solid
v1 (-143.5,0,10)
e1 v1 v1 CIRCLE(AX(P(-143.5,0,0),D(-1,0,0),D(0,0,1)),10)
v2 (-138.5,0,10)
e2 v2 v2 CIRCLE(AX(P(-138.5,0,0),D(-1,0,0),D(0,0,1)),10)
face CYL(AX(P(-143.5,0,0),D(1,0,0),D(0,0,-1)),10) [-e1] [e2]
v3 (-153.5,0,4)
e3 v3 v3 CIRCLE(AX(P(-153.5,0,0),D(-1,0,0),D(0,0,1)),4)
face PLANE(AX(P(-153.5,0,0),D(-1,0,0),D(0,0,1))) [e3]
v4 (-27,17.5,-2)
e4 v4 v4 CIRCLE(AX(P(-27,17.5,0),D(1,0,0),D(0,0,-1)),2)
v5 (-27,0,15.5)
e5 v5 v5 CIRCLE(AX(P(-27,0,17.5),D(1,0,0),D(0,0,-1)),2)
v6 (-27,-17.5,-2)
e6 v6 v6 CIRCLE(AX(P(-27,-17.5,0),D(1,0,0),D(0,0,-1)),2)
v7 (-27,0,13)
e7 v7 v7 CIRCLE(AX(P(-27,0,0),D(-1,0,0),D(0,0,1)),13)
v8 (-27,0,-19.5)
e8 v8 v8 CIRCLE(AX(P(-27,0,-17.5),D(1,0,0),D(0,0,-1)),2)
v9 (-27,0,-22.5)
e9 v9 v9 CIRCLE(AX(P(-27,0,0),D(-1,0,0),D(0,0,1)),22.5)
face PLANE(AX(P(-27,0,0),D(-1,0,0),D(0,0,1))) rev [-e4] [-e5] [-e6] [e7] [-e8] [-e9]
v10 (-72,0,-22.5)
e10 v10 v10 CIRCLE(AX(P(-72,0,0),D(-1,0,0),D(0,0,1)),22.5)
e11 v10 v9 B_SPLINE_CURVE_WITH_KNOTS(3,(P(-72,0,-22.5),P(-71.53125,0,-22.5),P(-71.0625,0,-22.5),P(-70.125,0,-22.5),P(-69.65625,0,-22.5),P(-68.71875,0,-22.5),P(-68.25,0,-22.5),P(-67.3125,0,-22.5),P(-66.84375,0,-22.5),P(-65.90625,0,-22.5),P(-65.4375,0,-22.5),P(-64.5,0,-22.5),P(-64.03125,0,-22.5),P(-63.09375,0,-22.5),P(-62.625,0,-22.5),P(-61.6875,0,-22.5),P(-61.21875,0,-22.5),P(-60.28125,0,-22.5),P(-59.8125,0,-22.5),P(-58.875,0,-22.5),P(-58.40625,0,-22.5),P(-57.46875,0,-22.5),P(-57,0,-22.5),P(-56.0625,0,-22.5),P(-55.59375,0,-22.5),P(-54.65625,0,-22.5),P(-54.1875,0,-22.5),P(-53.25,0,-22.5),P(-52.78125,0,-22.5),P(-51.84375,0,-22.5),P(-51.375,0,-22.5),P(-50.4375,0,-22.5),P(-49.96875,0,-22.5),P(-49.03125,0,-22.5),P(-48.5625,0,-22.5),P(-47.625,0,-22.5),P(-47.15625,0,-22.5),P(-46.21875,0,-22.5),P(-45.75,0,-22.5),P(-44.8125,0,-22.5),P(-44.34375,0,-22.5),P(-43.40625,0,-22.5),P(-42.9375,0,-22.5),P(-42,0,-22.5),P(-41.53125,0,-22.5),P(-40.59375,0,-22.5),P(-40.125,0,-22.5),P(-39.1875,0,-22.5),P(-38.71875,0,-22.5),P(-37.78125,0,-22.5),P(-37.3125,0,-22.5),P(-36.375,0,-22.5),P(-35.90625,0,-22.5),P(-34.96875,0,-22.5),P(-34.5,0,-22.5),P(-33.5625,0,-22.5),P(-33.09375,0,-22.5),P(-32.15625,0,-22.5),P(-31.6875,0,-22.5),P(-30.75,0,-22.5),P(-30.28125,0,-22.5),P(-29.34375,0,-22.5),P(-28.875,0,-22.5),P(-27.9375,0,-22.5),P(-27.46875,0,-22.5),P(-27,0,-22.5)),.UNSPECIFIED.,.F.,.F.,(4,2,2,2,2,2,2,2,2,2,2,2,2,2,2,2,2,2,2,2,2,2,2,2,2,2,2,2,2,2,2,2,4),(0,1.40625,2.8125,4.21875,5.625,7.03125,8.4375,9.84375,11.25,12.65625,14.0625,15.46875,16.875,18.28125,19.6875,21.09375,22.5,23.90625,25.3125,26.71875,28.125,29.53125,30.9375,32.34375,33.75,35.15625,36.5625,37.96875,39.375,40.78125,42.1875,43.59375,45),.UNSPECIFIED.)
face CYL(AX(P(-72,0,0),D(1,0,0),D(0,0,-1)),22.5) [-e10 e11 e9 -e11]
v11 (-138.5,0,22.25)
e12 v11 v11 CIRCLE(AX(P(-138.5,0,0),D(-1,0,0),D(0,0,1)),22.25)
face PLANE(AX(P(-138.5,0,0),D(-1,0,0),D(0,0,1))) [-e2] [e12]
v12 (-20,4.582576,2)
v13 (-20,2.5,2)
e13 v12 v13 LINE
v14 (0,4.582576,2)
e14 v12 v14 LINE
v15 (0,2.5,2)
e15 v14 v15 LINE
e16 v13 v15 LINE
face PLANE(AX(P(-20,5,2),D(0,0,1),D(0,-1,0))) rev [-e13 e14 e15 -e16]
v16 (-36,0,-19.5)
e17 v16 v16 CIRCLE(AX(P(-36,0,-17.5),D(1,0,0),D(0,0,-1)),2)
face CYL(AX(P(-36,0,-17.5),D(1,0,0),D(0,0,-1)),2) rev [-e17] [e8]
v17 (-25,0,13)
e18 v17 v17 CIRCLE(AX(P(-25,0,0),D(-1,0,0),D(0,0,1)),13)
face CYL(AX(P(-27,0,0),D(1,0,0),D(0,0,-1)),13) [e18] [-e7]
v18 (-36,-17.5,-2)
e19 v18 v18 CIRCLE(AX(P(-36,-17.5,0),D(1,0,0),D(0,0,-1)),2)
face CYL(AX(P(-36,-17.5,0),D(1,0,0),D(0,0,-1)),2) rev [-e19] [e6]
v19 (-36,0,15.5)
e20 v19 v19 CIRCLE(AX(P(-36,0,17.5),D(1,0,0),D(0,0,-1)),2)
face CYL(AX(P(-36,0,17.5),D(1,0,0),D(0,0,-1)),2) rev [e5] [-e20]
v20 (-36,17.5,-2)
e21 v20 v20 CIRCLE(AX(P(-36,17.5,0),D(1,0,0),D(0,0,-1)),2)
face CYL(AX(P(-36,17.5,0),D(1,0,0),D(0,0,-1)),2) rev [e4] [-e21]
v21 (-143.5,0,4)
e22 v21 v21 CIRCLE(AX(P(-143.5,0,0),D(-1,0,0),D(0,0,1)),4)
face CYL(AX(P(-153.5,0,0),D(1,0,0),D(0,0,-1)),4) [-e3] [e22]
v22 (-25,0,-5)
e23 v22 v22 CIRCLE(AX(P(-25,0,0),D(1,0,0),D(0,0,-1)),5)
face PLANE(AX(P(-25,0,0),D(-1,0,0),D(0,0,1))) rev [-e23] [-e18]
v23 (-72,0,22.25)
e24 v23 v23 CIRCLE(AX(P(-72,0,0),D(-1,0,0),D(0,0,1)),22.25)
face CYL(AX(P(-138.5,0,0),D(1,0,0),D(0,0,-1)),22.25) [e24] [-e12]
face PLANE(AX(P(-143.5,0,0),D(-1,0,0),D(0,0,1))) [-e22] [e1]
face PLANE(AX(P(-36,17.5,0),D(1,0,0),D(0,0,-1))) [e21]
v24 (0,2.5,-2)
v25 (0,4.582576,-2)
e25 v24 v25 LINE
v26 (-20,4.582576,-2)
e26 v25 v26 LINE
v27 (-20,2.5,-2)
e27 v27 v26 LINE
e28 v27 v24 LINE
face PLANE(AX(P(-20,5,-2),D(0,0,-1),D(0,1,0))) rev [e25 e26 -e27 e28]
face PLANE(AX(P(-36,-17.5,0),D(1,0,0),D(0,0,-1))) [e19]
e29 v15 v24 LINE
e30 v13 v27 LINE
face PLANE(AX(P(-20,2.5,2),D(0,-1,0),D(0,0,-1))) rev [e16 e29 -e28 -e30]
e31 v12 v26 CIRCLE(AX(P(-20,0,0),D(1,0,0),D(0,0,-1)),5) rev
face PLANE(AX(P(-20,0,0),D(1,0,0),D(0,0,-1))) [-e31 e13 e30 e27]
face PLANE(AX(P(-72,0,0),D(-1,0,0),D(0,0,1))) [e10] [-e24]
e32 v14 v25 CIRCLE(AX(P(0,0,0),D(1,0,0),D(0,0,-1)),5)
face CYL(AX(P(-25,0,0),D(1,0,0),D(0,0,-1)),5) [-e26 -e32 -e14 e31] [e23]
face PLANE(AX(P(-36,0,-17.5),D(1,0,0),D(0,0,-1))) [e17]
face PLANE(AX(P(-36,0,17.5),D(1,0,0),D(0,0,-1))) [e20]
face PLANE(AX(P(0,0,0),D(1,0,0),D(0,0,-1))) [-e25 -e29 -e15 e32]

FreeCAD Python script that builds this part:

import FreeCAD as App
import Part
import Sketcher

V = App.Vector
Q = App.Units.Quantity


def add_polygon(sketch, points):
    """Adds a closed chain of lines whose ends are joined by coincident constraints."""
    first, n = sketch.GeometryCount, len(points)
    for a, b in zip(points, points[1:] + points[:1]):
        sketch.addGeometry(Part.LineSegment(App.Vector(*a, 0), App.Vector(*b, 0)), False)
    for i in range(n):
        sketch.addConstraint(Sketcher.Constraint("Coincident", first + i, 2, first + (i + 1) % n, 1))

doc = App.newDocument("Part")
body = doc.addObject("PartDesign::Body", "Body")

sketch1 = body.newObject("Sketcher::SketchObject", "Sketch")
sketch1.AttachmentSupport = (doc.getObject("YZ_Plane"), [""])
sketch1.MapMode = "FlatFace"
sketch1.addGeometry(Part.Circle(V(0, 0, 0), V(0, 0, 1), 5), False)
sketch1.addConstraint([
    Sketcher.Constraint("Coincident", 0, 3, -1, 1),
    Sketcher.Constraint("Diameter", 0, Q("10 mm")),
])
pad1 = body.newObject("PartDesign::Pad", "Pad")
pad1.Profile = sketch1
pad1.Length = 25
pad1.Reversed = True

sketch2 = body.newObject("Sketcher::SketchObject", "Sketch001")
sketch2.AttachmentSupport = (doc.getObject("YZ_Plane"), [""])
sketch2.MapMode = "FlatFace"
sketch2.AttachmentOffset = App.Placement(V(0, 0, -25), App.Rotation())
sketch2.addGeometry(Part.Circle(V(0, 0, 0), V(0, 0, 1), 13), False)
sketch2.addConstraint([
    Sketcher.Constraint("Coincident", 0, 3, -1, 1),
    Sketcher.Constraint("Diameter", 0, Q("26 mm")),
])
pad2 = body.newObject("PartDesign::Pad", "Pad001")
pad2.Profile = sketch2
pad2.Length = 2
pad2.Reversed = True

sketch3 = body.newObject("Sketcher::SketchObject", "Sketch002")
sketch3.AttachmentSupport = (doc.getObject("YZ_Plane"), [""])
sketch3.MapMode = "FlatFace"
sketch3.AttachmentOffset = App.Placement(V(0, 0, -27), App.Rotation())
sketch3.addGeometry(Part.Circle(V(0, 0, 0), V(0, 0, 1), 22), False)
sketch3.addConstraint([
    Sketcher.Constraint("Coincident", 0, 3, -1, 1),
    Sketcher.Constraint("Diameter", 0, Q("45 mm")),
])
pad3 = body.newObject("PartDesign::Pad", "Pad002")
pad3.Profile = sketch3
pad3.Length = 45
pad3.Reversed = True

sketch4 = body.newObject("Sketcher::SketchObject", "Sketch003")
sketch4.AttachmentSupport = (doc.getObject("YZ_Plane"), [""])
sketch4.MapMode = "FlatFace"
sketch4.AttachmentOffset = App.Placement(V(0, 0, -72), App.Rotation())
sketch4.addGeometry(Part.Circle(V(0, 0, 0), V(0, 0, 1), 22), False)
sketch4.addConstraint([
    Sketcher.Constraint("Coincident", 0, 3, -1, 1),
    Sketcher.Constraint("Diameter", 0, Q("44.5 mm")),
])
pad4 = body.newObject("PartDesign::Pad", "Pad003")
pad4.Profile = sketch4
pad4.Length = 66.5
pad4.Reversed = True

sketch5 = body.newObject("Sketcher::SketchObject", "Sketch004")
sketch5.AttachmentSupport = (doc.getObject("YZ_Plane"), [""])
sketch5.MapMode = "FlatFace"
sketch5.AttachmentOffset = App.Placement(V(0, 0, -138.5), App.Rotation())
sketch5.addGeometry(Part.Circle(V(0, 0, 0), V(0, 0, 1), 10), False)
sketch5.addConstraint([
    Sketcher.Constraint("Coincident", 0, 3, -1, 1),
    Sketcher.Constraint("Diameter", 0, Q("20 mm")),
])
pad5 = body.newObject("PartDesign::Pad", "Pad004")
pad5.Profile = sketch5
pad5.Length = 5
pad5.Reversed = True

sketch6 = body.newObject("Sketcher::SketchObject", "Sketch005")
sketch6.AttachmentSupport = (doc.getObject("YZ_Plane"), [""])
sketch6.MapMode = "FlatFace"
sketch6.AttachmentOffset = App.Placement(V(0, 0, -143.5), App.Rotation())
sketch6.addGeometry(Part.Circle(V(0, 0, 0), V(0, 0, 1), 4), False)
sketch6.addConstraint([
    Sketcher.Constraint("Coincident", 0, 3, -1, 1),
    Sketcher.Constraint("Diameter", 0, Q("8 mm")),
])
pad6 = body.newObject("PartDesign::Pad", "Pad005")
pad6.Profile = sketch6
pad6.Length = 10
pad6.Reversed = True

sketch7 = body.newObject("Sketcher::SketchObject", "Sketch006")
sketch7.AttachmentSupport = (doc.getObject("YZ_Plane"), [""])
sketch7.MapMode = "FlatFace"
sketch7.AttachmentOffset = App.Placement(V(0, 0, -27), App.Rotation())
sketch7.addGeometry([
    Part.Circle(V(17.5, 0, 0), V(0, 0, 1), 2),
    Part.Circle(V(0, -17.5, 0), V(0, 0, 1), 2),
    Part.Circle(V(-17.5, 0, 0), V(0, 0, 1), 2),
    Part.Circle(V(0, 17.5, 0), V(0, 0, 1), 2),
], False)
sketch7.addConstraint([
    Sketcher.Constraint("Equal", 0, 1),
    Sketcher.Constraint("Equal", 1, 2),
    Sketcher.Constraint("Equal", 2, 3),
    Sketcher.Constraint("Symmetric", 0, 3, 2, 3, -1, 1),
    Sketcher.Constraint("Symmetric", 1, 3, 3, 3, -1, 1),
    Sketcher.Constraint("PointOnObject", 0, 3, -1),
    Sketcher.Constraint("PointOnObject", 1, 3, -2),
    Sketcher.Constraint("Diameter", 0, Q("4 mm")),
    Sketcher.Constraint("DistanceX", 2, 3, 0, 3, Q("35 mm")),
    Sketcher.Constraint("DistanceY", 1, 3, 3, 3, Q("35 mm")),
])
pocket1 = body.newObject("PartDesign::Pocket", "Pocket")
pocket1.Profile = sketch7
pocket1.Length = 9

sketch8 = body.newObject("Sketcher::SketchObject", "Sketch007")
sketch8.AttachmentSupport = (doc.getObject("YZ_Plane"), [""])
sketch8.MapMode = "FlatFace"
add_polygon(sketch8, [(5, 2), (2.5, 2), (2.5, -2), (5, -2)])
sketch8.addConstraint([
    Sketcher.Constraint("Horizontal", 0),
    Sketcher.Constraint("Vertical", 1),
    Sketcher.Constraint("Horizontal", 2),
    Sketcher.Constraint("Vertical", 3),
    Sketcher.Constraint("DistanceY", 1, 2, 1, 1, Q("4 mm")),
    Sketcher.Constraint("DistanceX", 0, 2, 0, 1, Q("2.5 mm")),
    Sketcher.Constraint("DistanceY", -1, 1, 0, 2, Q("2 mm")),
    Sketcher.Constraint("DistanceX", -1, 1, 2, 2, Q("5 mm")),
])
pocket2 = body.newObject("PartDesign::Pocket", "Pocket001")
pocket2.Profile = sketch8
pocket2.Length = 20

doc.recompute()
